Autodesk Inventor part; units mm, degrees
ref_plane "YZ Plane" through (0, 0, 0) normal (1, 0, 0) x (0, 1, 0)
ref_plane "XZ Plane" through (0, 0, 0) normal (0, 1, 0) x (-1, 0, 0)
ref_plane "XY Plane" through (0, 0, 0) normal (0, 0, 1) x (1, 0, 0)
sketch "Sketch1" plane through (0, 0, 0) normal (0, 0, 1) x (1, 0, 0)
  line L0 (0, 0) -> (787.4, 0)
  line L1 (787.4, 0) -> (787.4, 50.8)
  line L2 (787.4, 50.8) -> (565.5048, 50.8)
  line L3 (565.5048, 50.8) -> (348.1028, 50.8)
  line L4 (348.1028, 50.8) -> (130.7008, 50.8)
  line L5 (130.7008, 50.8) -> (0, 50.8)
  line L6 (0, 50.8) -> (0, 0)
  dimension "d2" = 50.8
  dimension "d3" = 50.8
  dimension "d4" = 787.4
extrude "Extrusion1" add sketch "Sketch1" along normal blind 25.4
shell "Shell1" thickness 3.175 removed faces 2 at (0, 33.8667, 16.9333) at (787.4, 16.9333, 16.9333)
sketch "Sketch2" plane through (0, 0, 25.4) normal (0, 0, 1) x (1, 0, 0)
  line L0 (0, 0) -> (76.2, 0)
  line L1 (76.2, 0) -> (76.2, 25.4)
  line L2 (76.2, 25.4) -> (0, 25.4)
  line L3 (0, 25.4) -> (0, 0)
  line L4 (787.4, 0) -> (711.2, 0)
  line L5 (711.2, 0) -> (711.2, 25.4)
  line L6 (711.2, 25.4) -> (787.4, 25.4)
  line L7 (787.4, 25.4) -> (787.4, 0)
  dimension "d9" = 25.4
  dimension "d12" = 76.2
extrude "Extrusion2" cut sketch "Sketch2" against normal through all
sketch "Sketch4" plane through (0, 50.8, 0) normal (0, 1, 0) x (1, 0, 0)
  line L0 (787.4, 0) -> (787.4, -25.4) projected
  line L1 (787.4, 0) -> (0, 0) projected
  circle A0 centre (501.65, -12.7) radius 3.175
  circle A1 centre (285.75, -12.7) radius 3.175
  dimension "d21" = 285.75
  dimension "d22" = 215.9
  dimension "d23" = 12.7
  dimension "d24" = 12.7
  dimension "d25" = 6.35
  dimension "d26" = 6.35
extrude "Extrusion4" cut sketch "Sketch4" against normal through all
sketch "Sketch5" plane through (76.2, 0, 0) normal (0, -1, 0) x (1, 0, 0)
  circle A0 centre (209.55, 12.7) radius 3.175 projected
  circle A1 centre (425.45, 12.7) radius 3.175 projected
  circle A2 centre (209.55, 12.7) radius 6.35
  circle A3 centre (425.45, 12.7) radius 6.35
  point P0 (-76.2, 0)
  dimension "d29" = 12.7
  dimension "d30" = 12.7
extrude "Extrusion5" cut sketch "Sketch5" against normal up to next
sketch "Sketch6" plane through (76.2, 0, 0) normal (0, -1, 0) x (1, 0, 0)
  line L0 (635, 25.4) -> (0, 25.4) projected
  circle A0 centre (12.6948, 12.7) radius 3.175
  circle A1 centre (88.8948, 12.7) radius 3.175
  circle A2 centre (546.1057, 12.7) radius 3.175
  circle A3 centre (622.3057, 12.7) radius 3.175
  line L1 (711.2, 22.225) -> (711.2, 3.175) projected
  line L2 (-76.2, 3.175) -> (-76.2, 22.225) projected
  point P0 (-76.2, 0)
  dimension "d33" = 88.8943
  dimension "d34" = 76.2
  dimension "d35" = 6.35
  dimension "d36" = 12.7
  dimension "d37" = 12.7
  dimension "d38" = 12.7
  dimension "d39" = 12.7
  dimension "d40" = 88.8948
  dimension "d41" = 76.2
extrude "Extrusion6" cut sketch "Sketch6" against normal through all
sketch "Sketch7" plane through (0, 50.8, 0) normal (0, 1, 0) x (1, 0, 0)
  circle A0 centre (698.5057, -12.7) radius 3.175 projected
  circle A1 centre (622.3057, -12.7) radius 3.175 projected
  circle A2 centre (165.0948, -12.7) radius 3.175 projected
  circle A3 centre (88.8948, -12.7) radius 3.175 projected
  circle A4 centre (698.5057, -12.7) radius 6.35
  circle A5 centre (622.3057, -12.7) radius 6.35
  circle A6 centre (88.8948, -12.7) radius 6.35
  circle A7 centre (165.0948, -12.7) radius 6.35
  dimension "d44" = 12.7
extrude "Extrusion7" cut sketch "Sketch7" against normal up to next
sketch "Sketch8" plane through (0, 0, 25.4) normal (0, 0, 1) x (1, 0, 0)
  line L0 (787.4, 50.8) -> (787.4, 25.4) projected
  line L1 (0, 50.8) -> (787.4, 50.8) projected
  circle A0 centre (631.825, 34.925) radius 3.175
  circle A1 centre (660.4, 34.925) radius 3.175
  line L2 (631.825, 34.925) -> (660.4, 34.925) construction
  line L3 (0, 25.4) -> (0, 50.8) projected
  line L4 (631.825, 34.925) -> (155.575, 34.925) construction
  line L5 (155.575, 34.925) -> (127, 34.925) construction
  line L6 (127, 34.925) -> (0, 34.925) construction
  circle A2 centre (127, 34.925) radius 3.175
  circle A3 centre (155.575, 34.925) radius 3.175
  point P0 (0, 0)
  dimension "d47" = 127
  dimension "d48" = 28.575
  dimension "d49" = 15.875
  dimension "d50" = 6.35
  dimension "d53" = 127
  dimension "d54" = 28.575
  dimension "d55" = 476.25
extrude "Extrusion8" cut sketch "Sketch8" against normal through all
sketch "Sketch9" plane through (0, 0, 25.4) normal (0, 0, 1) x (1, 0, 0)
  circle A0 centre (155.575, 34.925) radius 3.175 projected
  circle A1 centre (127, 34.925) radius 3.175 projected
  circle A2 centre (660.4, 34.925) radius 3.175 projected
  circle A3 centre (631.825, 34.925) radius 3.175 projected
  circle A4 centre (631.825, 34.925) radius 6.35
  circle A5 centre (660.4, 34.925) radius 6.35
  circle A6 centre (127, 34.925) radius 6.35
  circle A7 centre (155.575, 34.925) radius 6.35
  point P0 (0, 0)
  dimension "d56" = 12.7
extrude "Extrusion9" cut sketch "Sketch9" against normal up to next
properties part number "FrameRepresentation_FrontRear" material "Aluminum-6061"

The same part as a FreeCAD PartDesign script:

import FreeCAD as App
import Part
import Sketcher
Q = App.Units.Quantity


def faces_at(feature, points):
    """Names of the faces that lie closest to the given points."""
    faces = feature.Shape.Faces
    near = lambda p: min(range(len(faces)), key=lambda i: faces[i].distToShape(Part.Vertex(*p))[0])
    return sorted({f"Face{near(p) + 1}" for p in points})


def add_polygon(sketch, points):
    """Adds a closed chain of lines whose ends are joined by coincident constraints."""
    first, n = sketch.GeometryCount, len(points)
    for a, b in zip(points, points[1:] + points[:1]):
        sketch.addGeometry(Part.LineSegment(App.Vector(*a, 0), App.Vector(*b, 0)), False)
    for i in range(n):
        sketch.addConstraint(Sketcher.Constraint("Coincident", first + i, 2, first + (i + 1) % n, 1))

doc = App.newDocument("Part")
body = doc.addObject("PartDesign::Body", "Body")

# Sketch on XY plane
sketch1 = body.newObject("Sketcher::SketchObject", "Sketch")
sketch1.AttachmentSupport = (doc.getObject("XY_Plane"), [""])
sketch1.MapMode = "FlatFace"
add_polygon(sketch1, [(0, 50.8), (0, 0), (787.4, 0), (787.4, 50.8)])  # lines 0-3
sketch1.addConstraint([
    Sketcher.Constraint("Vertical", 0),
    Sketcher.Constraint("Horizontal", 1),
    Sketcher.Constraint("Vertical", 2),
    Sketcher.Constraint("Horizontal", 3),
    Sketcher.Constraint("Coincident", 0, 2, -1, 1),
    Sketcher.Constraint("DistanceX", 1, 1, 1, 2, Q("31 in")),
    Sketcher.Constraint("DistanceY", 0, 2, 0, 1, Q("2 in")),
])
pad1 = body.newObject("PartDesign::Pad", "Pad")
pad1.Profile = sketch1
pad1.Length = Q("1 in")
doc.recompute()

thickness = body.newObject("PartDesign::Thickness", "Thickness")
thickness.Base = (pad1, faces_at(pad1, [(0, 33.867, 16.933), (787.4, 16.933, 16.933)]))
thickness.Value = Q("0.125 in")
thickness.Reversed = True
thickness.Join = "Intersection"

# Sketch on XY plane
sketch2 = body.newObject("Sketcher::SketchObject", "Sketch001")
sketch2.AttachmentSupport = (doc.getObject("XY_Plane"), [""])
sketch2.MapMode = "FlatFace"
sketch2.AttachmentOffset = App.Placement(App.Vector(0, 0, 1 * 25.4), App.Rotation())
add_polygon(sketch2, [(0, 25.4), (0, 0), (76.2, 0), (76.2, 25.4)])  # lines 0-3
add_polygon(sketch2, [(711.2, 0), (787.4, 0), (787.4, 25.4), (711.2, 25.4)])  # lines 4-7
sketch2.addConstraint([
    Sketcher.Constraint("Vertical", 0),
    Sketcher.Constraint("Horizontal", 1),
    Sketcher.Constraint("Vertical", 2),
    Sketcher.Constraint("Horizontal", 3),
    Sketcher.Constraint("Horizontal", 4),
    Sketcher.Constraint("Vertical", 5),
    Sketcher.Constraint("Horizontal", 6),
    Sketcher.Constraint("Vertical", 7),
    Sketcher.Constraint("Coincident", 0, 2, -1, 1),
    Sketcher.Constraint("PointOnObject", 4, 2, -1),
    Sketcher.Constraint("Horizontal", 3, 2, 5, 2),
    Sketcher.Constraint("Equal", 3, 4),
    Sketcher.Constraint("DistanceX", 1, 1, 1, 2, Q("3 in")),
    Sketcher.Constraint("DistanceY", 0, 2, 0, 1, Q("1 in")),
    Sketcher.Constraint("DistanceX", -1, 1, 4, 2, Q("31 in")),
])
pocket1 = body.newObject("PartDesign::Pocket", "Pocket")
pocket1.Profile = sketch2
pocket1.Type = "ThroughAll"

# Sketch on XZ plane
sketch3 = body.newObject("Sketcher::SketchObject", "Sketch002")
sketch3.AttachmentSupport = (doc.getObject("XZ_Plane"), [""])
sketch3.MapMode = "FlatFace"
sketch3.AttachmentOffset = App.Placement(App.Vector(0, 0, -2 * 25.4), App.Rotation())
sketch3.addGeometry([
    Part.Circle(App.Vector(501.65, 12.7, 0), App.Vector(0, 0, 1), 3.175),
    Part.Circle(App.Vector(285.75, 12.7, 0), App.Vector(0, 0, 1), 3.175),
], False)
sketch3.addConstraint([
    Sketcher.Constraint("Equal", 0, 1),
    Sketcher.Constraint("Horizontal", 0, 3, 1, 3),
    Sketcher.Constraint("Diameter", 0, Q("0.25 in")),
    Sketcher.Constraint("DistanceY", -1, 1, 0, 3, Q("0.5 in")),
    Sketcher.Constraint("DistanceX", 1, 3, 0, 3, Q("8.5 in")),
    Sketcher.Constraint("DistanceX", -1, 1, 1, 3, Q("11.25 in")),
])
pocket2 = body.newObject("PartDesign::Pocket", "Pocket001")
pocket2.Profile = sketch3
pocket2.Type = "ThroughAll"
pocket2.Reversed = True

# Sketch on XZ plane
sketch4 = body.newObject("Sketcher::SketchObject", "Sketch003")
sketch4.AttachmentSupport = (doc.getObject("XZ_Plane"), [""])
sketch4.MapMode = "FlatFace"
sketch4.addGeometry([
    Part.Circle(App.Vector(285.75, 12.7, 0), App.Vector(0, 0, 1), 6.35),
    Part.Circle(App.Vector(285.75, 12.7, 0), App.Vector(0, 0, 1), 3.175),
    Part.Circle(App.Vector(501.65, 12.7, 0), App.Vector(0, 0, 1), 6.35),
    Part.Circle(App.Vector(501.65, 12.7, 0), App.Vector(0, 0, 1), 3.175),
], False)
sketch4.addConstraint([
    Sketcher.Constraint("Coincident", 1, 3, 0, 3),
    Sketcher.Constraint("Coincident", 3, 3, 2, 3),
    Sketcher.Constraint("Equal", 0, 2),
    Sketcher.Constraint("Equal", 1, 3),
    Sketcher.Constraint("Horizontal", 1, 3, 2, 3),
    Sketcher.Constraint("Diameter", 0, Q("0.5 in")),
    Sketcher.Constraint("DistanceY", -1, 1, 0, 3, Q("0.5 in")),
    Sketcher.Constraint("Diameter", 1, Q("0.25 in")),
    Sketcher.Constraint("DistanceX", 0, 3, 2, 3, Q("8.5 in")),
    Sketcher.Constraint("DistanceX", -1, 1, 0, 3, Q("11.25 in")),
])
pocket3 = body.newObject("PartDesign::Pocket", "Pocket002")
pocket3.Profile = sketch4
pocket3.Length = Q("0.125 in")

# Sketch on XZ plane
sketch5 = body.newObject("Sketcher::SketchObject", "Sketch004")
sketch5.AttachmentSupport = (doc.getObject("XZ_Plane"), [""])
sketch5.MapMode = "FlatFace"
sketch5.addGeometry([
    Part.Circle(App.Vector(88.8948, 12.7, 0), App.Vector(0, 0, 1), 3.175),
    Part.Circle(App.Vector(165.0948, 12.7, 0), App.Vector(0, 0, 1), 3.175),
    Part.Circle(App.Vector(622.3057, 12.7, 0), App.Vector(0, 0, 1), 3.175),
    Part.Circle(App.Vector(698.5057, 12.7, 0), App.Vector(0, 0, 1), 3.175),
], False)
sketch5.addConstraint([
    Sketcher.Constraint("Equal", 0, 1),
    Sketcher.Constraint("Equal", 1, 2),
    Sketcher.Constraint("Equal", 2, 3),
    Sketcher.Constraint("Horizontal", 0, 3, 1, 3),
    Sketcher.Constraint("Horizontal", 1, 3, 2, 3),
    Sketcher.Constraint("Horizontal", 2, 3, 3, 3),
    Sketcher.Constraint("Diameter", 0, Q("0.25 in")),
    Sketcher.Constraint("DistanceX", 0, 3, 1, 3, Q("3 in")),
    Sketcher.Constraint("DistanceX", 2, 3, 3, 3, Q("3 in")),
    Sketcher.Constraint("DistanceY", -1, 1, 0, 3, Q("0.5 in")),
    Sketcher.Constraint("DistanceX", -1, 1, 0, 3, Q("3.4998 in")),
    Sketcher.Constraint("DistanceX", -1, 1, 2, 3, Q("622.3057 mm")),
])
pocket4 = body.newObject("PartDesign::Pocket", "Pocket003")
pocket4.Profile = sketch5
pocket4.Type = "ThroughAll"

# Sketch on XZ plane
sketch6 = body.newObject("Sketcher::SketchObject", "Sketch005")
sketch6.AttachmentSupport = (doc.getObject("XZ_Plane"), [""])
sketch6.MapMode = "FlatFace"
sketch6.AttachmentOffset = App.Placement(App.Vector(0, 0, -2 * 25.4), App.Rotation())
sketch6.addGeometry([
    Part.Circle(App.Vector(698.5057, 12.7, 0), App.Vector(0, 0, 1), 6.35),  # 0
    Part.Circle(App.Vector(698.5057, 12.7, 0), App.Vector(0, 0, 1), 3.175),  # 1
    Part.Circle(App.Vector(622.3057, 12.7, 0), App.Vector(0, 0, 1), 6.35),  # 2
    Part.Circle(App.Vector(622.3057, 12.7, 0), App.Vector(0, 0, 1), 3.175),  # 3
    Part.Circle(App.Vector(88.8948, 12.7, 0), App.Vector(0, 0, 1), 6.35),  # 4
    Part.Circle(App.Vector(88.8948, 12.7, 0), App.Vector(0, 0, 1), 3.175),  # 5
    Part.Circle(App.Vector(165.0948, 12.7, 0), App.Vector(0, 0, 1), 6.35),  # 6
    Part.Circle(App.Vector(165.0948, 12.7, 0), App.Vector(0, 0, 1), 3.175),  # 7
], False)
sketch6.addConstraint([
    Sketcher.Constraint("Coincident", 1, 3, 0, 3),
    Sketcher.Constraint("Coincident", 3, 3, 2, 3),
    Sketcher.Constraint("Coincident", 5, 3, 4, 3),
    Sketcher.Constraint("Coincident", 7, 3, 6, 3),
    Sketcher.Constraint("Equal", 0, 2),
    Sketcher.Constraint("Equal", 1, 3),
    Sketcher.Constraint("Equal", 2, 4),
    Sketcher.Constraint("Equal", 3, 5),
    Sketcher.Constraint("Equal", 4, 6),
    Sketcher.Constraint("Equal", 5, 7),
    Sketcher.Constraint("Horizontal", 1, 3, 2, 3),
    Sketcher.Constraint("Horizontal", 3, 3, 4, 3),
    Sketcher.Constraint("Horizontal", 5, 3, 6, 3),
    Sketcher.Constraint("Diameter", 0, Q("0.5 in")),
    Sketcher.Constraint("DistanceY", -1, 1, 0, 3, Q("0.5 in")),
    Sketcher.Constraint("Diameter", 1, Q("0.25 in")),
    Sketcher.Constraint("DistanceX", 2, 3, 0, 3, Q("3 in")),
    Sketcher.Constraint("DistanceX", 4, 3, 6, 3, Q("3 in")),
    Sketcher.Constraint("DistanceX", -1, 1, 4, 3, Q("3.4998 in")),
    Sketcher.Constraint("DistanceX", -1, 1, 0, 3, Q("698.5057 mm")),
])
pocket5 = body.newObject("PartDesign::Pocket", "Pocket004")
pocket5.Profile = sketch6
pocket5.Type = "UpToFirst"
pocket5.Reversed = True

# Sketch on XY plane
sketch7 = body.newObject("Sketcher::SketchObject", "Sketch006")
sketch7.AttachmentSupport = (doc.getObject("XY_Plane"), [""])
sketch7.MapMode = "FlatFace"
sketch7.AttachmentOffset = App.Placement(App.Vector(0, 0, 1 * 25.4), App.Rotation())
sketch7.addGeometry([
    Part.Circle(App.Vector(631.825, 34.925, 0), App.Vector(0, 0, 1), 3.175),
    Part.Circle(App.Vector(660.4, 34.925, 0), App.Vector(0, 0, 1), 3.175),
    Part.Circle(App.Vector(127, 34.925, 0), App.Vector(0, 0, 1), 3.175),
    Part.Circle(App.Vector(155.575, 34.925, 0), App.Vector(0, 0, 1), 3.175),
], False)
sketch7.addConstraint([
    Sketcher.Constraint("Equal", 0, 1),
    Sketcher.Constraint("Equal", 1, 2),
    Sketcher.Constraint("Equal", 2, 3),
    Sketcher.Constraint("Horizontal", 0, 3, 1, 3),
    Sketcher.Constraint("Horizontal", 1, 3, 2, 3),
    Sketcher.Constraint("Horizontal", 2, 3, 3, 3),
    Sketcher.Constraint("Diameter", 0, Q("0.25 in")),
    Sketcher.Constraint("DistanceX", -1, 1, 2, 3, Q("5 in")),
    Sketcher.Constraint("DistanceX", 3, 3, 0, 3, Q("18.75 in")),
    Sketcher.Constraint("DistanceX", -1, 1, 1, 3, Q("26 in")),
    Sketcher.Constraint("DistanceX", 0, 3, 1, 3, Q("1.125 in")),
    Sketcher.Constraint("DistanceY", -1, 1, 0, 3, Q("1.375 in")),
])
pocket6 = body.newObject("PartDesign::Pocket", "Pocket005")
pocket6.Profile = sketch7
pocket6.Type = "ThroughAll"

# Sketch on XY plane
sketch8 = body.newObject("Sketcher::SketchObject", "Sketch007")
sketch8.AttachmentSupport = (doc.getObject("XY_Plane"), [""])
sketch8.MapMode = "FlatFace"
sketch8.AttachmentOffset = App.Placement(App.Vector(0, 0, 1 * 25.4), App.Rotation())
sketch8.addGeometry([
    Part.Circle(App.Vector(631.825, 34.925, 0), App.Vector(0, 0, 1), 6.35),  # 0
    Part.Circle(App.Vector(631.825, 34.925, 0), App.Vector(0, 0, 1), 3.175),  # 1
    Part.Circle(App.Vector(660.4, 34.925, 0), App.Vector(0, 0, 1), 6.35),  # 2
    Part.Circle(App.Vector(660.4, 34.925, 0), App.Vector(0, 0, 1), 3.175),  # 3
    Part.Circle(App.Vector(127, 34.925, 0), App.Vector(0, 0, 1), 6.35),  # 4
    Part.Circle(App.Vector(127, 34.925, 0), App.Vector(0, 0, 1), 3.175),  # 5
    Part.Circle(App.Vector(155.575, 34.925, 0), App.Vector(0, 0, 1), 6.35),  # 6
    Part.Circle(App.Vector(155.575, 34.925, 0), App.Vector(0, 0, 1), 3.175),  # 7
], False)
sketch8.addConstraint([
    Sketcher.Constraint("Coincident", 1, 3, 0, 3),
    Sketcher.Constraint("Coincident", 3, 3, 2, 3),
    Sketcher.Constraint("Coincident", 5, 3, 4, 3),
    Sketcher.Constraint("Coincident", 7, 3, 6, 3),
    Sketcher.Constraint("Equal", 0, 2),
    Sketcher.Constraint("Equal", 1, 3),
    Sketcher.Constraint("Equal", 2, 4),
    Sketcher.Constraint("Equal", 3, 5),
    Sketcher.Constraint("Equal", 4, 6),
    Sketcher.Constraint("Equal", 5, 7),
    Sketcher.Constraint("Horizontal", 1, 3, 2, 3),
    Sketcher.Constraint("Horizontal", 3, 3, 4, 3),
    Sketcher.Constraint("Horizontal", 5, 3, 6, 3),
    Sketcher.Constraint("Diameter", 0, Q("0.5 in")),
    Sketcher.Constraint("Diameter", 1, Q("0.25 in")),
    Sketcher.Constraint("DistanceX", -1, 1, 2, 3, Q("26 in")),
    Sketcher.Constraint("DistanceX", -1, 1, 4, 3, Q("5 in")),
    Sketcher.Constraint("DistanceX", 6, 3, 0, 3, Q("18.75 in")),
    Sketcher.Constraint("DistanceX", -1, 1, 0, 3, Q("24.875 in")),
    Sketcher.Constraint("DistanceY", -1, 1, 0, 3, Q("1.375 in")),
])
pocket7 = body.newObject("PartDesign::Pocket", "Pocket006")
pocket7.Profile = sketch8
pocket7.Length = Q("0.125 in")

doc.recompute()
